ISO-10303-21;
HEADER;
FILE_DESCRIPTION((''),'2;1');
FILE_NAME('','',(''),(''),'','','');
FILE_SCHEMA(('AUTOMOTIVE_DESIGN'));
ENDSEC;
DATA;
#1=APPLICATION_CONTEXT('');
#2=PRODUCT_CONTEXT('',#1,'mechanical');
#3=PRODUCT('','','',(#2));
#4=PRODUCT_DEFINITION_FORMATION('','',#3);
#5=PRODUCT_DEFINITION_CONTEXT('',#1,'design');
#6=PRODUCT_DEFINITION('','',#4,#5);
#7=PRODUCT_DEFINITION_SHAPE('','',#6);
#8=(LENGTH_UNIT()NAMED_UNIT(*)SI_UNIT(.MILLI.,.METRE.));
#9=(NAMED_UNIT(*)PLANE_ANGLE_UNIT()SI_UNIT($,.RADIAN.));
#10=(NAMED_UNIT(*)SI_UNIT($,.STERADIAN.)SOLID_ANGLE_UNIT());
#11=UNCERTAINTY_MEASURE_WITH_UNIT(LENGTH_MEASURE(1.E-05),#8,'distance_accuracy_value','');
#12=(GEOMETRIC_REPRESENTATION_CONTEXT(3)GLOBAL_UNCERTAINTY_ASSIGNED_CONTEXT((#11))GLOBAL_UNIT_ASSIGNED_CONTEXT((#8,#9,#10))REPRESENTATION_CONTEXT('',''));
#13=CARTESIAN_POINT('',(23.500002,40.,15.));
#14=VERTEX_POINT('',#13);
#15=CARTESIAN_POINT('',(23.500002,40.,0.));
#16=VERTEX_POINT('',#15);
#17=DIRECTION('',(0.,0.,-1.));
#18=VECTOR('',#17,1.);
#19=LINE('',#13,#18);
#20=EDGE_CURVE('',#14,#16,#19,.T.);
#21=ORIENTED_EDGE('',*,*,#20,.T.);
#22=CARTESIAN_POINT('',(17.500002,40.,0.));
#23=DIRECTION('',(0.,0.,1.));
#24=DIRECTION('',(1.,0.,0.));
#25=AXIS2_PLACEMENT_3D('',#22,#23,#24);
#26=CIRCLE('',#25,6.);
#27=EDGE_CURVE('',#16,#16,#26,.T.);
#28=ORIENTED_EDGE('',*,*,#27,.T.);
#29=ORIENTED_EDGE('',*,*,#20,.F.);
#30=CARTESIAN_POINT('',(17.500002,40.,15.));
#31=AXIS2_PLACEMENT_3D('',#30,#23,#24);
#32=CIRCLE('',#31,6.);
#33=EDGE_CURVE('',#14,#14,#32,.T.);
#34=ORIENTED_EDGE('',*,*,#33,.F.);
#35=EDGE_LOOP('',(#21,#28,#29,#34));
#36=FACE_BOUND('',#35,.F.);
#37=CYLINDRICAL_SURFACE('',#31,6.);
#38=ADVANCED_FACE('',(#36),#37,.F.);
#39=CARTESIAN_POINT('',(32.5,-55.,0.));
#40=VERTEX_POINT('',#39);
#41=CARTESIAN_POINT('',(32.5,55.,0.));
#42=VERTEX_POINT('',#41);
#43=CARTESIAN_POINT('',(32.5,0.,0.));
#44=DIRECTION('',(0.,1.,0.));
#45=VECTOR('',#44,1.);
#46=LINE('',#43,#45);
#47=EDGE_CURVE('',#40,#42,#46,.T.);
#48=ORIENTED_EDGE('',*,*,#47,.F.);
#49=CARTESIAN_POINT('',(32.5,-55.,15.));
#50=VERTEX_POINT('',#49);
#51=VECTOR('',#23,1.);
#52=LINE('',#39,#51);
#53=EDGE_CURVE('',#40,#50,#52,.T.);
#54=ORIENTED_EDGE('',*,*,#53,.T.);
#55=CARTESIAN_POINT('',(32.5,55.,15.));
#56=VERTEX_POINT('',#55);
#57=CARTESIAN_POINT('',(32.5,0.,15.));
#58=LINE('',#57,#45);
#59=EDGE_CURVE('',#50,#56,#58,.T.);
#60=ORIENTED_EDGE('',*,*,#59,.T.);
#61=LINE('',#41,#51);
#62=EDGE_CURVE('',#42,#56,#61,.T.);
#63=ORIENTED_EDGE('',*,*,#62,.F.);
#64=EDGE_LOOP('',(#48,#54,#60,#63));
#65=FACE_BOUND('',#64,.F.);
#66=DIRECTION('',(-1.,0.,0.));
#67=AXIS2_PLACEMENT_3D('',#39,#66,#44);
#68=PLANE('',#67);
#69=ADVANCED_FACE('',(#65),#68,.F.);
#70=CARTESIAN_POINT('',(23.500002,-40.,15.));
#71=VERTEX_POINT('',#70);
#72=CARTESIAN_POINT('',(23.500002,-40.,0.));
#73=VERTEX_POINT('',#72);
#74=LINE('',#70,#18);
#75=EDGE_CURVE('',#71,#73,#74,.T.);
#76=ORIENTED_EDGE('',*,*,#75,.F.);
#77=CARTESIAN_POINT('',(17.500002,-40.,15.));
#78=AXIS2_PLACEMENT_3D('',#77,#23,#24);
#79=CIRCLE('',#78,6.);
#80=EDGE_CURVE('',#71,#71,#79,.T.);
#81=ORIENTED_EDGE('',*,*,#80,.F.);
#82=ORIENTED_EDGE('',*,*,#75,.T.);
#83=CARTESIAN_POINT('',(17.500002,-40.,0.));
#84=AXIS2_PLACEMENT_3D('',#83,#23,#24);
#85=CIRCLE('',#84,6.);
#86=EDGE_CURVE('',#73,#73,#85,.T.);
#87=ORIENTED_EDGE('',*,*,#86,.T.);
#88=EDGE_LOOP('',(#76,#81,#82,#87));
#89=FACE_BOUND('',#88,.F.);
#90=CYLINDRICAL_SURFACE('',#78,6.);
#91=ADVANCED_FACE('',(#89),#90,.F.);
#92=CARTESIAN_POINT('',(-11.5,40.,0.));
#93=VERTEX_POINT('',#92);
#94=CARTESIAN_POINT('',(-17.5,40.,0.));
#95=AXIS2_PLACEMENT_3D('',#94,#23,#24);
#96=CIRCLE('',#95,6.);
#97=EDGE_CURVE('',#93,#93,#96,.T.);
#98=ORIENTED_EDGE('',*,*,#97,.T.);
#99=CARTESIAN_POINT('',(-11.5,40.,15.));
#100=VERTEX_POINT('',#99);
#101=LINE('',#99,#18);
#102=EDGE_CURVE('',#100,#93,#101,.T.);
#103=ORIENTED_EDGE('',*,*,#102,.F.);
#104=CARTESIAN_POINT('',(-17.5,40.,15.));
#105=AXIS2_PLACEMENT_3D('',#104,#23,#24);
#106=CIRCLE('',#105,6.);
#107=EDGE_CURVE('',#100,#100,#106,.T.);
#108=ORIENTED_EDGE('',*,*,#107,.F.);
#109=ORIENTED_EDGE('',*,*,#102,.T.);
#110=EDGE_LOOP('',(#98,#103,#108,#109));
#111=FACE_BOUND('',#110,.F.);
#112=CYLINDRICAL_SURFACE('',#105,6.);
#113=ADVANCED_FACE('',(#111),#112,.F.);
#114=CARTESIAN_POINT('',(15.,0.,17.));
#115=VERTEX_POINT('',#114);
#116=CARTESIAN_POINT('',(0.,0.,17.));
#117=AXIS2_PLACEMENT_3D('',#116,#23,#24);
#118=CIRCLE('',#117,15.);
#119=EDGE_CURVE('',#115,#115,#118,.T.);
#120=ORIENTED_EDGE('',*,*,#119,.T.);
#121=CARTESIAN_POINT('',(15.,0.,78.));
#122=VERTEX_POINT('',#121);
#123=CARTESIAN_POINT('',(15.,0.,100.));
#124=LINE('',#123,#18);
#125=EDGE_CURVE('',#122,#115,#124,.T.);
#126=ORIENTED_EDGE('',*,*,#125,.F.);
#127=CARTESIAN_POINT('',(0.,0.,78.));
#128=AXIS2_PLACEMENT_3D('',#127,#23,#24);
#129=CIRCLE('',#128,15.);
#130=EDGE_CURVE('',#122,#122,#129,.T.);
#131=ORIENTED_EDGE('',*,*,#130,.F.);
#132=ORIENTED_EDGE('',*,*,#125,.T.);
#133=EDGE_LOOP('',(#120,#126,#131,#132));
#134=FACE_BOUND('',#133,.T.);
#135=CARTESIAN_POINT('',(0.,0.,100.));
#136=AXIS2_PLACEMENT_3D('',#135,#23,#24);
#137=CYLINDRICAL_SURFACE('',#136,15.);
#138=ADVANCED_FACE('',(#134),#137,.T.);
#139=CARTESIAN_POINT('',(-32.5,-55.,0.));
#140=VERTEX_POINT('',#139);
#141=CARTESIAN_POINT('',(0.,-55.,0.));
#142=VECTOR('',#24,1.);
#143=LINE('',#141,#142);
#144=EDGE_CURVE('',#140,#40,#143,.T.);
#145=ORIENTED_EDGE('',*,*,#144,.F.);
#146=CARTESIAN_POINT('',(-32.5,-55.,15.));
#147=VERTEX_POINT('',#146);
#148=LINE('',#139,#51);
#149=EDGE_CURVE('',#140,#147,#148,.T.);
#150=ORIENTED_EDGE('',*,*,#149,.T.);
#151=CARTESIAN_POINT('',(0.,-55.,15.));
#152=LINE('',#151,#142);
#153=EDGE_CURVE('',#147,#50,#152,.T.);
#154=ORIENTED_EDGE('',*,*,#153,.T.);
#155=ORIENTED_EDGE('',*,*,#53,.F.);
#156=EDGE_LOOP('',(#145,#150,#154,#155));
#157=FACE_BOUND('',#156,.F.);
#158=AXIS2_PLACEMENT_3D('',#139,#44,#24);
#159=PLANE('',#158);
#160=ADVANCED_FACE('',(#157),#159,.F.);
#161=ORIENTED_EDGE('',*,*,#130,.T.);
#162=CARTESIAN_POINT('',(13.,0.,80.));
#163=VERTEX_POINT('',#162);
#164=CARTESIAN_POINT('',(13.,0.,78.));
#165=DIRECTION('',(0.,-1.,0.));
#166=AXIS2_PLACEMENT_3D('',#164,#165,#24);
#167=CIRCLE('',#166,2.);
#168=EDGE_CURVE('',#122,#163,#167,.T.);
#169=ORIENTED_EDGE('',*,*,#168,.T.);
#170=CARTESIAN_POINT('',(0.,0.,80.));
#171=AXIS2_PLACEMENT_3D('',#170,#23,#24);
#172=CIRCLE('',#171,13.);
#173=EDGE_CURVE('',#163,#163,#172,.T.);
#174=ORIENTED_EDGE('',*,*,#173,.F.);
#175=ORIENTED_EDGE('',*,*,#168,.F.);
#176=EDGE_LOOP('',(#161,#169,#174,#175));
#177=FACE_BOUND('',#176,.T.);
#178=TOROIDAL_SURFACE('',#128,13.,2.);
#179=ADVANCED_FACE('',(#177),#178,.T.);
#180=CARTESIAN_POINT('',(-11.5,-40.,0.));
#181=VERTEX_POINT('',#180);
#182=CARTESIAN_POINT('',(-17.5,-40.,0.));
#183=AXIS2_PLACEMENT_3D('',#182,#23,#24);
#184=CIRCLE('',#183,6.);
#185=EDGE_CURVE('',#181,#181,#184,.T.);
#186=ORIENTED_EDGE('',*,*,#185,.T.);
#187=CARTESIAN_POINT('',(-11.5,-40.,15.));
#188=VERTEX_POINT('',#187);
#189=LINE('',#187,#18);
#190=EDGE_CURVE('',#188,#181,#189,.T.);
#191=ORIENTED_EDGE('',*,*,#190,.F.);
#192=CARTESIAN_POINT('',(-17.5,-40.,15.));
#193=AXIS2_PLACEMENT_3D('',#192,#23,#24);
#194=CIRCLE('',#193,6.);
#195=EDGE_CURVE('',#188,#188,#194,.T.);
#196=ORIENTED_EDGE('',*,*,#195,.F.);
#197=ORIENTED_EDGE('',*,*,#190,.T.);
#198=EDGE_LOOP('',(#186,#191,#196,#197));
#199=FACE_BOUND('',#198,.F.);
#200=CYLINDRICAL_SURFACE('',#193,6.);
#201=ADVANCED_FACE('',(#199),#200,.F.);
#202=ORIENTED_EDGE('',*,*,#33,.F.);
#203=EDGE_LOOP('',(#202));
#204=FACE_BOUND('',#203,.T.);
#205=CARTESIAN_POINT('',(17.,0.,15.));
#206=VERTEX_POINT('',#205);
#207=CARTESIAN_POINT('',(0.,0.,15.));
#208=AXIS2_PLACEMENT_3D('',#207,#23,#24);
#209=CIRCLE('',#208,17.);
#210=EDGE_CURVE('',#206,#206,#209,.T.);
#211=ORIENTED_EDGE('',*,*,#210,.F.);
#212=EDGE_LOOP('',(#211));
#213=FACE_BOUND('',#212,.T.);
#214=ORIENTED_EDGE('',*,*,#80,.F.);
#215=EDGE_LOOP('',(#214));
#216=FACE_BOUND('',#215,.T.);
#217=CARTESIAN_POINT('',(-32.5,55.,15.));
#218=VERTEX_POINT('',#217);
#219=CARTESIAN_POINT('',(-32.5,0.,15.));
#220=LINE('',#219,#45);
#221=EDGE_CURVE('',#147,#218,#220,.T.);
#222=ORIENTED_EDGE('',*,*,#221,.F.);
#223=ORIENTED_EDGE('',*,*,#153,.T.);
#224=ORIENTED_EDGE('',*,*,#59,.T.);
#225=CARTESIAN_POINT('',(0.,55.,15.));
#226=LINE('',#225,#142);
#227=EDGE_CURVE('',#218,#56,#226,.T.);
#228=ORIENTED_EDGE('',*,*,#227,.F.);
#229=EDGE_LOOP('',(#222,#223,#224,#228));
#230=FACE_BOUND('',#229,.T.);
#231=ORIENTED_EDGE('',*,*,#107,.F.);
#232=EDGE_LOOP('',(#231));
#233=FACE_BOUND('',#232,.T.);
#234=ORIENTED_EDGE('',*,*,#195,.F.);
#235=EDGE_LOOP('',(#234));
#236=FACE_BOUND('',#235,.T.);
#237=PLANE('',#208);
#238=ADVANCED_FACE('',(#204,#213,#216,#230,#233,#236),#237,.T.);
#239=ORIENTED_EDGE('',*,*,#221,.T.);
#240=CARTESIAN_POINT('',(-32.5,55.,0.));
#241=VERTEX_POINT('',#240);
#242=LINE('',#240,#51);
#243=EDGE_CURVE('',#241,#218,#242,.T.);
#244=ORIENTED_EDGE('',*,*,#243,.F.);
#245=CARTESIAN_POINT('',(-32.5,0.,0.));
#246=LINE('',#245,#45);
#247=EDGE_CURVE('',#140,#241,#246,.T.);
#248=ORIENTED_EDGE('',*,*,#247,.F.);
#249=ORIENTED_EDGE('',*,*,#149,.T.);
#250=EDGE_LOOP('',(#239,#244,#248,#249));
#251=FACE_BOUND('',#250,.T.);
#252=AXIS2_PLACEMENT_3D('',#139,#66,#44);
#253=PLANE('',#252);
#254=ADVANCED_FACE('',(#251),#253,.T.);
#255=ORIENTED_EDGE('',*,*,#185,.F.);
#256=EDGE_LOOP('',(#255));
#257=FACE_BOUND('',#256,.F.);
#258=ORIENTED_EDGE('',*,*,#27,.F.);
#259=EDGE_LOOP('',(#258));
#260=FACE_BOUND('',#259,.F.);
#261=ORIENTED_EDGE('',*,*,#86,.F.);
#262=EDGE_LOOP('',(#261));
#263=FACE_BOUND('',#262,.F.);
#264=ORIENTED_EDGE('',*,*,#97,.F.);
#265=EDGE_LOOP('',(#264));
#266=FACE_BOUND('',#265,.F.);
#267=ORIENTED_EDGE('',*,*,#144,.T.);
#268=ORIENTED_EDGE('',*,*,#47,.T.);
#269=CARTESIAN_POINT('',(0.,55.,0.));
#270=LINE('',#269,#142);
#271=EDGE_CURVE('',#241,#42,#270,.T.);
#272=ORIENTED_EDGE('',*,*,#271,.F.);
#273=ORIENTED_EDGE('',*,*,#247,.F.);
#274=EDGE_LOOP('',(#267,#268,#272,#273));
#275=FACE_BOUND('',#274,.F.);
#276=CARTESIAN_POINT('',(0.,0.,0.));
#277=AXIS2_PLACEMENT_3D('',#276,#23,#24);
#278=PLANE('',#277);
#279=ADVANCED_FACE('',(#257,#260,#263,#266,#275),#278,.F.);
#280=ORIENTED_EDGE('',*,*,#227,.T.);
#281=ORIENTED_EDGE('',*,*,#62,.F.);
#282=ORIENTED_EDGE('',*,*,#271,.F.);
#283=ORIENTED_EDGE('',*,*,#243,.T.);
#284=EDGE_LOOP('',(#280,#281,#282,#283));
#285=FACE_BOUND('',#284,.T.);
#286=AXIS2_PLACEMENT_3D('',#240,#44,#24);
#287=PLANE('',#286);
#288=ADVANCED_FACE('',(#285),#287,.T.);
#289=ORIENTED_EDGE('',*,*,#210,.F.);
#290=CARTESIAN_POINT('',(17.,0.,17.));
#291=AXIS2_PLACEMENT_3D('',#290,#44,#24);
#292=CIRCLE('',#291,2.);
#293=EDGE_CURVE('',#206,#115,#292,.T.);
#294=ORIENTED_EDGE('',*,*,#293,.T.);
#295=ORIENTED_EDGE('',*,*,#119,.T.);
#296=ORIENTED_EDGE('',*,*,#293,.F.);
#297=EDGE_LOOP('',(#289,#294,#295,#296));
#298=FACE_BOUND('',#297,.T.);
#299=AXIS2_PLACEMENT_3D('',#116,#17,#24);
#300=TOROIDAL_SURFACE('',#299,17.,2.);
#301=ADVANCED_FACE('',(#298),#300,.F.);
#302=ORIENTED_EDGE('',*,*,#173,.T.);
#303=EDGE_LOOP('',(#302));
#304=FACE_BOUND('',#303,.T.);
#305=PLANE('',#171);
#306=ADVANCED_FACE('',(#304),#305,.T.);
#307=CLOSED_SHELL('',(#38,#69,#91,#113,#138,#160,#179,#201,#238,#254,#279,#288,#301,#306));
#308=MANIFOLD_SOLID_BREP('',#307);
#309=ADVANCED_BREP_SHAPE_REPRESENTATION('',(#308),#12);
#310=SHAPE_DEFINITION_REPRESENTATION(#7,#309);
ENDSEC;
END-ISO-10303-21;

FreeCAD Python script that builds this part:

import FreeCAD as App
import Part
import Sketcher
from FreeCAD import Vector


def edges_at(feature, points):
    """Names of the edges that pass closest to the given points."""
    edges = feature.Shape.Edges
    near = lambda p: min(range(len(edges)), key=lambda i: edges[i].distToShape(Part.Vertex(*p))[0])
    return sorted({f"Edge{near(p) + 1}" for p in points})


def add_polygon(sketch, points):
    """Adds a closed chain of lines whose ends are joined by coincident constraints."""
    first, n = sketch.GeometryCount, len(points)
    for a, b in zip(points, points[1:] + points[:1]):
        sketch.addGeometry(Part.LineSegment(App.Vector(*a, 0), App.Vector(*b, 0)), False)
    for i in range(n):
        sketch.addConstraint(Sketcher.Constraint("Coincident", first + i, 2, first + (i + 1) % n, 1))

doc = App.newDocument("Part")
params = doc.addObject("Spreadsheet::Sheet", "Params")
for row, (alias, value) in enumerate([
    ("sketch1_width", "65 mm"),
    ("sketch1_height", "110 mm"),
    ("pad1_length", "100 mm"),
    ("sketch2_diameter", "30 mm"),
    ("sketch2_width", "65 mm"),
    ("sketch2_height", "110 mm"),
    ("pocket1_length", "85 mm"),
    ("sketch3_diameter", "30 mm"),
    ("pocket2_length", "20 mm"),
    ("sketch4_diameter", "12 mm"),
    ("pocket3_length", "30 mm"),
    ("fillet_radius", "2 mm"),
], start=1):
    params.set(f"A{row}", alias)
    params.set(f"B{row}", "=" + value)
    params.setAlias(f"B{row}", alias)

body = doc.addObject("PartDesign::Body", "Body")

sketch1 = body.newObject("Sketcher::SketchObject", "Sketch")
sketch1.AttachmentSupport = (doc.getObject("XY_Plane"), [""])
sketch1.MapMode = "FlatFace"
add_polygon(sketch1, [(-32, 55), (-32, -55), (32, -55), (32, 55)])
sketch1.addConstraint(Sketcher.Constraint("Vertical", 0))
sketch1.addConstraint(Sketcher.Constraint("Horizontal", 1))
sketch1.addConstraint(Sketcher.Constraint("Vertical", 2))
sketch1.addConstraint(Sketcher.Constraint("Horizontal", 3))
sketch1.addConstraint(Sketcher.Constraint("Symmetric", 0, 2, 2, 2, -1, 1))
sketch1.addConstraint(Sketcher.Constraint("DistanceX", 1, 1, 1, 2, 65.0))
sketch1.addConstraint(Sketcher.Constraint("DistanceY", 0, 2, 0, 1, 110.0))
sketch1.setExpression("Constraints[9]", "Params.sketch1_width")
sketch1.setExpression("Constraints[10]", "Params.sketch1_height")
pad1 = body.newObject("PartDesign::Pad", "Pad")
pad1.Profile = sketch1
pad1.setExpression("Length", "Params.pad1_length")

sketch2 = body.newObject("Sketcher::SketchObject", "Sketch001")
sketch2.AttachmentSupport = (doc.getObject("XY_Plane"), [""])
sketch2.MapMode = "FlatFace"
sketch2.AttachmentOffset = App.Placement(Vector(0, 0, 100), App.Rotation())
add_polygon(sketch2, [(-32, 55), (-32, -55), (32, -55), (32, 55)])
sketch2.addGeometry(Part.Circle(Vector(0, 0, 0), Vector(0, 0, 1), 15), False)
sketch2.addConstraint(Sketcher.Constraint("Vertical", 0))
sketch2.addConstraint(Sketcher.Constraint("Horizontal", 1))
sketch2.addConstraint(Sketcher.Constraint("Vertical", 2))
sketch2.addConstraint(Sketcher.Constraint("Horizontal", 3))
sketch2.addConstraint(Sketcher.Constraint("Coincident", 4, 3, -1, 1))
sketch2.addConstraint(Sketcher.Constraint("Symmetric", 0, 2, 2, 2, -1, 1))
sketch2.addConstraint(Sketcher.Constraint("Diameter", 4, 30.0))
sketch2.addConstraint(Sketcher.Constraint("DistanceX", 1, 1, 1, 2, 65.0))
sketch2.addConstraint(Sketcher.Constraint("DistanceY", 0, 2, 0, 1, 110.0))
sketch2.setExpression("Constraints[10]", "Params.sketch2_diameter")
sketch2.setExpression("Constraints[11]", "Params.sketch2_width")
sketch2.setExpression("Constraints[12]", "Params.sketch2_height")
pocket1 = body.newObject("PartDesign::Pocket", "Pocket")
pocket1.Profile = sketch2
pocket1.setExpression("Length", "Params.pocket1_length")

sketch3 = body.newObject("Sketcher::SketchObject", "Sketch002")
sketch3.AttachmentSupport = (doc.getObject("XY_Plane"), [""])
sketch3.MapMode = "FlatFace"
sketch3.AttachmentOffset = App.Placement(Vector(0, 0, 100), App.Rotation())
sketch3.addGeometry(Part.Circle(Vector(0, 0, 0), Vector(0, 0, 1), 15), False)
sketch3.addConstraint(Sketcher.Constraint("Coincident", 0, 3, -1, 1))
sketch3.addConstraint(Sketcher.Constraint("Diameter", 0, 30.0))
sketch3.setExpression("Constraints[1]", "Params.sketch3_diameter")
pocket2 = body.newObject("PartDesign::Pocket", "Pocket001")
pocket2.Profile = sketch3
pocket2.setExpression("Length", "Params.pocket2_length")

sketch4 = body.newObject("Sketcher::SketchObject", "Sketch003")
sketch4.AttachmentSupport = (doc.getObject("XY_Plane"), [""])
sketch4.MapMode = "FlatFace"
sketch4.AttachmentOffset = App.Placement(Vector(0, 0, 15), App.Rotation())
sketch4.addGeometry(Part.Circle(Vector(-18, 40, 0), Vector(0, 0, 1), 6), False)
sketch4.addGeometry(Part.Circle(Vector(18, 40, 0), Vector(0, 0, 1), 6), False)
sketch4.addGeometry(Part.Circle(Vector(18, -40, 0), Vector(0, 0, 1), 6), False)
sketch4.addGeometry(Part.Circle(Vector(-18, -40, 0), Vector(0, 0, 1), 6), False)
sketch4.addConstraint(Sketcher.Constraint("Equal", 0, 1))
sketch4.addConstraint(Sketcher.Constraint("Equal", 1, 2))
sketch4.addConstraint(Sketcher.Constraint("Equal", 2, 3))
sketch4.addConstraint(Sketcher.Constraint("Symmetric", 0, 3, 2, 3, -1, 1))
sketch4.addConstraint(Sketcher.Constraint("Symmetric", 1, 3, 3, 3, -1, 1))
sketch4.addConstraint(Sketcher.Constraint("Symmetric", 0, 3, 1, 3, -2))
sketch4.addConstraint(Sketcher.Constraint("Diameter", 0, 12.0))
sketch4.addConstraint(Sketcher.Constraint("DistanceY", -1, 1, 0, 3, 40.0))
sketch4.addConstraint(Sketcher.Constraint("DistanceX", 0, 3, 1, 3, 35.000002))
sketch4.setExpression("Constraints[6]", "Params.sketch4_diameter")
pocket3 = body.newObject("PartDesign::Pocket", "Pocket002")
pocket3.Profile = sketch4
pocket3.setExpression("Length", "Params.pocket3_length")
doc.recompute()

fillet = body.newObject("PartDesign::Fillet", "Fillet")
fillet.Base = (pocket3, edges_at(pocket3, [(-15, 0, 80), (-15, 0, 15)]))
fillet.setExpression("Radius", "Params.fillet_radius")

doc.recompute()
